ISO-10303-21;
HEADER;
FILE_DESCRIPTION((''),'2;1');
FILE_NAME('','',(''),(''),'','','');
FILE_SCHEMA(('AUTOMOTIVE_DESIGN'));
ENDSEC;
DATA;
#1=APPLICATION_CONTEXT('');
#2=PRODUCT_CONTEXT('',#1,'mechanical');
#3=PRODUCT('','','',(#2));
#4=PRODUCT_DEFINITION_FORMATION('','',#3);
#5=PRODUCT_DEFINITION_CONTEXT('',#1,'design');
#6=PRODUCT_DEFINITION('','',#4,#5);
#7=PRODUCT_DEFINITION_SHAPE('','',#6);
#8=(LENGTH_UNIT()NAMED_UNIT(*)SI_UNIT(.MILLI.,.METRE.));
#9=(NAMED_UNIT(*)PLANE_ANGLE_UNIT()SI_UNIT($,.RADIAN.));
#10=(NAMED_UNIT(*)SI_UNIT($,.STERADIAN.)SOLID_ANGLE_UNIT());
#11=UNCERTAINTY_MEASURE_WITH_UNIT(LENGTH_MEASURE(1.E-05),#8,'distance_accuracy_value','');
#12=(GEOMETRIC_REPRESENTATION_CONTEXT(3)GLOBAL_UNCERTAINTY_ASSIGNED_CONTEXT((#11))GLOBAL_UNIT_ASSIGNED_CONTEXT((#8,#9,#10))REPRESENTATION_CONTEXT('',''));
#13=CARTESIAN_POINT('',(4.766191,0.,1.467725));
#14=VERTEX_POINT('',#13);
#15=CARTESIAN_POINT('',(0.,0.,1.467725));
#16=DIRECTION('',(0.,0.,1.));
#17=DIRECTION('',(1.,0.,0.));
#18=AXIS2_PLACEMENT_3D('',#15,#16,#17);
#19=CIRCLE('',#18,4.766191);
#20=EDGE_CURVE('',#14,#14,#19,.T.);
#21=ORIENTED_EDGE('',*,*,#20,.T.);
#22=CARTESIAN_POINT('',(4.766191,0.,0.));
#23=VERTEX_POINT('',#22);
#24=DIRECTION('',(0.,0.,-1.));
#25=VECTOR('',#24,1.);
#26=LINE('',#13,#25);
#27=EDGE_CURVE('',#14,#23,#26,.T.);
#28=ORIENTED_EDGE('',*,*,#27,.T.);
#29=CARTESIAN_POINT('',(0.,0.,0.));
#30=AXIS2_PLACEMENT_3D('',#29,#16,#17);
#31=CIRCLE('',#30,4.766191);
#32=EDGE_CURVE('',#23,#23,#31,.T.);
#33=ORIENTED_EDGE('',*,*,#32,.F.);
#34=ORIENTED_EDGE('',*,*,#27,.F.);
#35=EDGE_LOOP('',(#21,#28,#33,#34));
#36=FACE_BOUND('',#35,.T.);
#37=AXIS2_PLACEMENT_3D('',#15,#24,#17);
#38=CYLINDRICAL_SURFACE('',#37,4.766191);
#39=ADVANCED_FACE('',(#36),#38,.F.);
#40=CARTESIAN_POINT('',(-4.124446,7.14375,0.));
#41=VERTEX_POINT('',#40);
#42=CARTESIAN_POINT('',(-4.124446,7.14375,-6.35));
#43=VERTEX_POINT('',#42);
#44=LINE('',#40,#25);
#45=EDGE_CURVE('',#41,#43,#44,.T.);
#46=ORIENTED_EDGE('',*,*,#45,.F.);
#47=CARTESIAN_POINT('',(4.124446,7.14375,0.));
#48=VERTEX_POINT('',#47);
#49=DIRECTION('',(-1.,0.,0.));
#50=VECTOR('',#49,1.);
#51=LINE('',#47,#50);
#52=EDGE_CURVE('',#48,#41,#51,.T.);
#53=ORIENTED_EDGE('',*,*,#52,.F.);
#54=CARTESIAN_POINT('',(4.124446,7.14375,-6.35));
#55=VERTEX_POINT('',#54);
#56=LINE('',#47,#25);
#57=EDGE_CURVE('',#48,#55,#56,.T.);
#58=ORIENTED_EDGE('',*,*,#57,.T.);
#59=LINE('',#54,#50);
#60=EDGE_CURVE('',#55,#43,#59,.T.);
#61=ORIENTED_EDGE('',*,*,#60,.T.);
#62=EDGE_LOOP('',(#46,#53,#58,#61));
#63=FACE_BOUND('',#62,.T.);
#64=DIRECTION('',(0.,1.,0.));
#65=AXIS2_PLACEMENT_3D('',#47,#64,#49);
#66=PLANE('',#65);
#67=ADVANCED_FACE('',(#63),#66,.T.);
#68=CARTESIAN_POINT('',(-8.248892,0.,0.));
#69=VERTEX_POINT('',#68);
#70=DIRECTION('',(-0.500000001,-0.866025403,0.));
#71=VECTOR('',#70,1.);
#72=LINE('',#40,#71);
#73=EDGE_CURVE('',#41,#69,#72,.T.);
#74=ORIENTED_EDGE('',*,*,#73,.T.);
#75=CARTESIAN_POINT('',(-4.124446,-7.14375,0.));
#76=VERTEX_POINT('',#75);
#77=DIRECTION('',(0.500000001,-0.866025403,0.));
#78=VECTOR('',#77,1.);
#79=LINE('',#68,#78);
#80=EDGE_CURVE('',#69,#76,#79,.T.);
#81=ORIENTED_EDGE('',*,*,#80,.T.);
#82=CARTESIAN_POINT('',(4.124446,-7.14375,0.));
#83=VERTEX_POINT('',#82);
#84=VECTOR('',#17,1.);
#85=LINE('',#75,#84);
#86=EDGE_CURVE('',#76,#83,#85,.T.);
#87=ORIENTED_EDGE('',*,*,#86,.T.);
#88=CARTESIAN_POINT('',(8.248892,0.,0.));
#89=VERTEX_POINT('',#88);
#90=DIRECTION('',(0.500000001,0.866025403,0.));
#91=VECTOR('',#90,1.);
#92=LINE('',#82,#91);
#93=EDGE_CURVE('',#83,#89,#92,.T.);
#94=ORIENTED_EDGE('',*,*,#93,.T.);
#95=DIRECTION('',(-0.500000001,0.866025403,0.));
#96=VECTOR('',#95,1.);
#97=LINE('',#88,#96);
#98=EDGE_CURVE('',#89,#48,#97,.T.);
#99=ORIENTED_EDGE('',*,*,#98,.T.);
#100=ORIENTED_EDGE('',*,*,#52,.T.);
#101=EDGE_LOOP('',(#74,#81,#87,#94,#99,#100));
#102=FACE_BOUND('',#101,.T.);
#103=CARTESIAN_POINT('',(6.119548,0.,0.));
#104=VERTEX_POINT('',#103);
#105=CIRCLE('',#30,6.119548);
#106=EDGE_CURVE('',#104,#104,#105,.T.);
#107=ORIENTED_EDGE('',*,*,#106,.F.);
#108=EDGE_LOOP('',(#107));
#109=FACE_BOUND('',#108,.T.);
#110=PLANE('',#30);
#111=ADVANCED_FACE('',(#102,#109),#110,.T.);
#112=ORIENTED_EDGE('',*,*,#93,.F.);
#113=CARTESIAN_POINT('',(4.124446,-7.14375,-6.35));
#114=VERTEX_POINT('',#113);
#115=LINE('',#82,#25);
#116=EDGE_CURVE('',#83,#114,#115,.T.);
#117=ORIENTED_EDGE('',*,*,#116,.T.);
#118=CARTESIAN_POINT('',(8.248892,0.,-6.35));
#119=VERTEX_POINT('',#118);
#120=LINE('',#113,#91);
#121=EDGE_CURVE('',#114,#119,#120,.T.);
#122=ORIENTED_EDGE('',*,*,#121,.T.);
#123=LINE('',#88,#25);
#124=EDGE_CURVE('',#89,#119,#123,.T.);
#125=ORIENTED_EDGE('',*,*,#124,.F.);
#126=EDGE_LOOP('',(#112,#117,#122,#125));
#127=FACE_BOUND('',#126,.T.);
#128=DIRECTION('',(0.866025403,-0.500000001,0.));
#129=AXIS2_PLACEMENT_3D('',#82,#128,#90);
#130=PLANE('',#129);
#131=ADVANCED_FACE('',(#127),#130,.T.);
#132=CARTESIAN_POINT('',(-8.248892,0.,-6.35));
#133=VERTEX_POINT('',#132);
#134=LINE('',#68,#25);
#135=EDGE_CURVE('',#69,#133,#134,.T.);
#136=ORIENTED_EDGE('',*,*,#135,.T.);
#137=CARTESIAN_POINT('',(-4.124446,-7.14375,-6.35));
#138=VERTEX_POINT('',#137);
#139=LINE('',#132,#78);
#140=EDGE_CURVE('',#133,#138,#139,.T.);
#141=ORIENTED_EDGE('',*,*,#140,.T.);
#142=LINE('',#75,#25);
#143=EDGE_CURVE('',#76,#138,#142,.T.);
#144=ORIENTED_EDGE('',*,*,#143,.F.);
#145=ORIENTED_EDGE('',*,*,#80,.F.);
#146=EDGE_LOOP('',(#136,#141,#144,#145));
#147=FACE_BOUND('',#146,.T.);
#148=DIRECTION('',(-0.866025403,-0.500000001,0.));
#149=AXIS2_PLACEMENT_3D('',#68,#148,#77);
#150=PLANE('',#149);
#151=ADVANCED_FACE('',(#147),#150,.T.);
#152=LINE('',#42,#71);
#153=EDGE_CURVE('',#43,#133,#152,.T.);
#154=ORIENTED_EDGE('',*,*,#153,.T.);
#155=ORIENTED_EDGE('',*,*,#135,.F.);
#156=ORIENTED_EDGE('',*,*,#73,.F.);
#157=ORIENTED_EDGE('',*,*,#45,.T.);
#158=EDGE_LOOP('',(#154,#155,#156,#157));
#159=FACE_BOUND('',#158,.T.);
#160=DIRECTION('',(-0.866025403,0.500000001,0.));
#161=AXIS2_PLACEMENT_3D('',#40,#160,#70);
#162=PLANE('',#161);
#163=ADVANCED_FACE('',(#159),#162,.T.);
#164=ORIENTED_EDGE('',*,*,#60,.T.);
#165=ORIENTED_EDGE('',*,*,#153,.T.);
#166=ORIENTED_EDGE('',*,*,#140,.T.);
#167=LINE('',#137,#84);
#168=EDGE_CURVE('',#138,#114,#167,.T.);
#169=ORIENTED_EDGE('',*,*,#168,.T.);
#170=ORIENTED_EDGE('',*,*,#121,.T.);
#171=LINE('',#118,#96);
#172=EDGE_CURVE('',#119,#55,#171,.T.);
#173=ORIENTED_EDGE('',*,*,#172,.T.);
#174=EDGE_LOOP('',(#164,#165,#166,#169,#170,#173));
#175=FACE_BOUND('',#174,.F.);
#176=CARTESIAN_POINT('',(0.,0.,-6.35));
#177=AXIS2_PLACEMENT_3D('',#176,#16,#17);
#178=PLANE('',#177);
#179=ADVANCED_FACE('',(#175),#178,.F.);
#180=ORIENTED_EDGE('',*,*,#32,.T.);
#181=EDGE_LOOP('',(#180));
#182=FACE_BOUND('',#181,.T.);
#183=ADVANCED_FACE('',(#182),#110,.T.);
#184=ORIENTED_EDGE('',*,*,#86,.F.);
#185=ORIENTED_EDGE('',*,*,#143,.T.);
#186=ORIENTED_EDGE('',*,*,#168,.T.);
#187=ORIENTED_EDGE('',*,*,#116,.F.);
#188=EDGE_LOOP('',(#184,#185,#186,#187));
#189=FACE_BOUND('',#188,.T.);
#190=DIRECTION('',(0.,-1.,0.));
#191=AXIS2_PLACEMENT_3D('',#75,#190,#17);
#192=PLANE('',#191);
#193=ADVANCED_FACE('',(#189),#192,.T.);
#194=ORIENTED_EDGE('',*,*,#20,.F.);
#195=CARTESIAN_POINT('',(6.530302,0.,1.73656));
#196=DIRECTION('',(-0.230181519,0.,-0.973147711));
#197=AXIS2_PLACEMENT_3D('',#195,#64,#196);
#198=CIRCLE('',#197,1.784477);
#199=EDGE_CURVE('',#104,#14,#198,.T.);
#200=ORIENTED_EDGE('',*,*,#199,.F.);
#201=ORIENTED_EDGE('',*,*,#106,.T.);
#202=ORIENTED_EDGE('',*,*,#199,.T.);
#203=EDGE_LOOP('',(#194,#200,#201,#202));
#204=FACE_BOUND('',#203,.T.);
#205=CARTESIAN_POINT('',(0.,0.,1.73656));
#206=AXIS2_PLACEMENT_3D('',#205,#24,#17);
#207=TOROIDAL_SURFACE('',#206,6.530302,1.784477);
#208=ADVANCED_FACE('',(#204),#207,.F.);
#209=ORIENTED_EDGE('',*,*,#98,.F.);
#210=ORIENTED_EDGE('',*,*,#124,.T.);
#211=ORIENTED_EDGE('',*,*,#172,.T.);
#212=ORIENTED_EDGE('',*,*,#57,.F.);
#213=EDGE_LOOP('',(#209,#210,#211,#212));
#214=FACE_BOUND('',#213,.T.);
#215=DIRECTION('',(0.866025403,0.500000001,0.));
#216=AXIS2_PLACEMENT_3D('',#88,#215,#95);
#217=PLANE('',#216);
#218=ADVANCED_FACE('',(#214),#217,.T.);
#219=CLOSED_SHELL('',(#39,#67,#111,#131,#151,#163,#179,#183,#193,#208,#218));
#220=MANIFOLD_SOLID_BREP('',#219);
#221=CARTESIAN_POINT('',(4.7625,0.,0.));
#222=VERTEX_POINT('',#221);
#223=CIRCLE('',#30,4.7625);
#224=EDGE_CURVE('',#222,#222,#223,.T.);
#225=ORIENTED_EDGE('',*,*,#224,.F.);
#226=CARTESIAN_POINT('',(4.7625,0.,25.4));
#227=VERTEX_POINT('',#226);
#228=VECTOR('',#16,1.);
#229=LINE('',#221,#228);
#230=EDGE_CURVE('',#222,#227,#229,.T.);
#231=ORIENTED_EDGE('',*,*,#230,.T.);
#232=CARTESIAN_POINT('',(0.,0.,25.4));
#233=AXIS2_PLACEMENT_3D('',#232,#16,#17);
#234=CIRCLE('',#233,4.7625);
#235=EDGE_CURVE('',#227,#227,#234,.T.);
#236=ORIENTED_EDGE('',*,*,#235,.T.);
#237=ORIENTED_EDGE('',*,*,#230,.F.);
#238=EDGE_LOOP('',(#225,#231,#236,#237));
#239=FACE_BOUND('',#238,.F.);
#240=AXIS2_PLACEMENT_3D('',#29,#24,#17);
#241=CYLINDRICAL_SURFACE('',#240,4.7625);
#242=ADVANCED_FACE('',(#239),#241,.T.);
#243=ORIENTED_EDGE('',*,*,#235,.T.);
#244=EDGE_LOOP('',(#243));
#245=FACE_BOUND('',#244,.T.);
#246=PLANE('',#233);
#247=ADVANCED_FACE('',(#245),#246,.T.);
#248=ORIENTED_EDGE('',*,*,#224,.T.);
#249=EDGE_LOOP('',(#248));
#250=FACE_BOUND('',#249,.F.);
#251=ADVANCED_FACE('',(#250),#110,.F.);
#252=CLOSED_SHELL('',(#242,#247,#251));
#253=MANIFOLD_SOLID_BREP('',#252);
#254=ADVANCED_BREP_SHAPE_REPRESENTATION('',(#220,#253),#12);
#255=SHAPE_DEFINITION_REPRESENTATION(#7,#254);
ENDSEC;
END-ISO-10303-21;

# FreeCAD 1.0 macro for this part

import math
import FreeCAD as App
import Part
import Sketcher
from FreeCAD import Vector
Q = App.Units.Quantity


def add_polygon(sketch, points):
    """Adds a closed chain of lines whose ends are joined by coincident constraints."""
    first, n = sketch.GeometryCount, len(points)
    for a, b in zip(points, points[1:] + points[:1]):
        sketch.addGeometry(Part.LineSegment(App.Vector(*a, 0), App.Vector(*b, 0)), False)
    for i in range(n):
        sketch.addConstraint(Sketcher.Constraint("Coincident", first + i, 2, first + (i + 1) % n, 1))

doc = App.newDocument("Part")
params = doc.addObject("Spreadsheet::Sheet", "Params")
for row, (alias, value) in enumerate([
    ("pad1_length", "0.25 in"),
    ("revolution_angle", "360 deg"),
    ("sketch3_diameter", "0.375 in"),
    ("pad2_length", "1 in"),
], start=1):
    params.set(f"A{row}", alias)
    params.set(f"B{row}", "=" + value)
    params.setAlias(f"B{row}", alias)

body = doc.addObject("PartDesign::Body", "Body")

sketch1 = body.newObject("Sketcher::SketchObject", "Sketch")
sketch1.AttachmentSupport = (doc.getObject("XY_Plane"), [""])
sketch1.MapMode = "FlatFace"
add_polygon(sketch1, [(4.124446, 7.14375), (-4.124446, 7.14375), (-8.248892, 0), (-4.124446, -7.14375), (4.124446, -7.14375), (8.248892, 0)])
sketch1.addConstraint(Sketcher.Constraint("Horizontal", 0))
sketch1.addConstraint(Sketcher.Constraint("Horizontal", 3))
sketch1.addConstraint(Sketcher.Constraint("Symmetric", 0, 2, 3, 2, -1, 1))
sketch1.addConstraint(Sketcher.Constraint("Symmetric", 1, 2, 4, 2, -1, 1))
sketch1.addConstraint(Sketcher.Constraint("PointOnObject", 1, 2, -1))
sketch1.addConstraint(Sketcher.Constraint("Parallel", 2, 5))
sketch1.addConstraint(Sketcher.Constraint("Vertical", 0, 2, 2, 2))
sketch1.addConstraint(Sketcher.Constraint("Angle", 1, Q("-120 deg")))
sketch1.addConstraint(Sketcher.Constraint("DistanceY", -1, 1, 0, 2, Q("0.28125 in")))
sketch1.addConstraint(Sketcher.Constraint("DistanceX", 0, 2, 0, 1, Q("8.248892 mm")))
pad1 = body.newObject("PartDesign::Pad", "Pad")
pad1.Profile = sketch1
pad1.setExpression("Length", "Params.pad1_length")
pad1.Reversed = True

sketch2 = body.newObject("Sketcher::SketchObject", "Sketch001")
sketch2.AttachmentSupport = (doc.getObject("XZ_Plane"), [""])
sketch2.MapMode = "FlatFace"
sketch2.addGeometry(Part.ArcOfCircle(Part.Circle(Vector(6.530302, 1.73656, 0), Vector(0, 0, 1), 1.784477), math.radians(-171.335295), math.radians(-103.307759)), False)
sketch2.addGeometry(Part.LineSegment(Vector(4.766191, 1.467725, 0), Vector(4.766191, 0, 0)), False)
sketch2.addGeometry(Part.LineSegment(Vector(4.766191, 0, 0), Vector(6.119548, 0, 0)), False)
sketch2.addConstraint(Sketcher.Constraint("Coincident", 0, 1, 1, 1))
sketch2.addConstraint(Sketcher.Constraint("Coincident", 1, 2, 2, 1))
sketch2.addConstraint(Sketcher.Constraint("Coincident", 2, 2, 0, 2))
sketch2.addConstraint(Sketcher.Constraint("Vertical", 1))
sketch2.addConstraint(Sketcher.Constraint("Horizontal", 2))
sketch2.addConstraint(Sketcher.Constraint("PointOnObject", 1, 2, -1))
sketch2.addConstraint(Sketcher.Constraint("Radius", 0, Q("1.784477 mm")))
sketch2.addConstraint(Sketcher.Constraint("DistanceX", -1, 1, 0, 3, Q("6.530302 mm")))
sketch2.addConstraint(Sketcher.Constraint("DistanceX", 2, 1, 2, 2, Q("1.353357 mm")))
sketch2.addConstraint(Sketcher.Constraint("DistanceY", 1, 2, 1, 1, Q("1.467725 mm")))
revolution = body.newObject("PartDesign::Revolution", "Revolution")
revolution.Profile = sketch2
revolution.ReferenceAxis = (sketch2, ["V_Axis"])
revolution.setExpression("Angle", "Params.revolution_angle")
body2 = doc.addObject("PartDesign::Body", "Body001")

sketch3 = body2.newObject("Sketcher::SketchObject", "Sketch002")
sketch3.AttachmentSupport = (doc.getObject("XY_Plane001"), [""])
sketch3.MapMode = "FlatFace"
sketch3.addGeometry(Part.Circle(Vector(0, 0, 0), Vector(0, 0, 1), 4.7625), False)
sketch3.addConstraint(Sketcher.Constraint("Coincident", 0, 3, -1, 1))
sketch3.addConstraint(Sketcher.Constraint("Diameter", 0, Q("0.375 in")))
sketch3.setExpression("Constraints[1]", "Params.sketch3_diameter")
pad2 = body2.newObject("PartDesign::Pad", "Pad001")
pad2.Profile = sketch3
pad2.setExpression("Length", "Params.pad2_length")

doc.recompute()
